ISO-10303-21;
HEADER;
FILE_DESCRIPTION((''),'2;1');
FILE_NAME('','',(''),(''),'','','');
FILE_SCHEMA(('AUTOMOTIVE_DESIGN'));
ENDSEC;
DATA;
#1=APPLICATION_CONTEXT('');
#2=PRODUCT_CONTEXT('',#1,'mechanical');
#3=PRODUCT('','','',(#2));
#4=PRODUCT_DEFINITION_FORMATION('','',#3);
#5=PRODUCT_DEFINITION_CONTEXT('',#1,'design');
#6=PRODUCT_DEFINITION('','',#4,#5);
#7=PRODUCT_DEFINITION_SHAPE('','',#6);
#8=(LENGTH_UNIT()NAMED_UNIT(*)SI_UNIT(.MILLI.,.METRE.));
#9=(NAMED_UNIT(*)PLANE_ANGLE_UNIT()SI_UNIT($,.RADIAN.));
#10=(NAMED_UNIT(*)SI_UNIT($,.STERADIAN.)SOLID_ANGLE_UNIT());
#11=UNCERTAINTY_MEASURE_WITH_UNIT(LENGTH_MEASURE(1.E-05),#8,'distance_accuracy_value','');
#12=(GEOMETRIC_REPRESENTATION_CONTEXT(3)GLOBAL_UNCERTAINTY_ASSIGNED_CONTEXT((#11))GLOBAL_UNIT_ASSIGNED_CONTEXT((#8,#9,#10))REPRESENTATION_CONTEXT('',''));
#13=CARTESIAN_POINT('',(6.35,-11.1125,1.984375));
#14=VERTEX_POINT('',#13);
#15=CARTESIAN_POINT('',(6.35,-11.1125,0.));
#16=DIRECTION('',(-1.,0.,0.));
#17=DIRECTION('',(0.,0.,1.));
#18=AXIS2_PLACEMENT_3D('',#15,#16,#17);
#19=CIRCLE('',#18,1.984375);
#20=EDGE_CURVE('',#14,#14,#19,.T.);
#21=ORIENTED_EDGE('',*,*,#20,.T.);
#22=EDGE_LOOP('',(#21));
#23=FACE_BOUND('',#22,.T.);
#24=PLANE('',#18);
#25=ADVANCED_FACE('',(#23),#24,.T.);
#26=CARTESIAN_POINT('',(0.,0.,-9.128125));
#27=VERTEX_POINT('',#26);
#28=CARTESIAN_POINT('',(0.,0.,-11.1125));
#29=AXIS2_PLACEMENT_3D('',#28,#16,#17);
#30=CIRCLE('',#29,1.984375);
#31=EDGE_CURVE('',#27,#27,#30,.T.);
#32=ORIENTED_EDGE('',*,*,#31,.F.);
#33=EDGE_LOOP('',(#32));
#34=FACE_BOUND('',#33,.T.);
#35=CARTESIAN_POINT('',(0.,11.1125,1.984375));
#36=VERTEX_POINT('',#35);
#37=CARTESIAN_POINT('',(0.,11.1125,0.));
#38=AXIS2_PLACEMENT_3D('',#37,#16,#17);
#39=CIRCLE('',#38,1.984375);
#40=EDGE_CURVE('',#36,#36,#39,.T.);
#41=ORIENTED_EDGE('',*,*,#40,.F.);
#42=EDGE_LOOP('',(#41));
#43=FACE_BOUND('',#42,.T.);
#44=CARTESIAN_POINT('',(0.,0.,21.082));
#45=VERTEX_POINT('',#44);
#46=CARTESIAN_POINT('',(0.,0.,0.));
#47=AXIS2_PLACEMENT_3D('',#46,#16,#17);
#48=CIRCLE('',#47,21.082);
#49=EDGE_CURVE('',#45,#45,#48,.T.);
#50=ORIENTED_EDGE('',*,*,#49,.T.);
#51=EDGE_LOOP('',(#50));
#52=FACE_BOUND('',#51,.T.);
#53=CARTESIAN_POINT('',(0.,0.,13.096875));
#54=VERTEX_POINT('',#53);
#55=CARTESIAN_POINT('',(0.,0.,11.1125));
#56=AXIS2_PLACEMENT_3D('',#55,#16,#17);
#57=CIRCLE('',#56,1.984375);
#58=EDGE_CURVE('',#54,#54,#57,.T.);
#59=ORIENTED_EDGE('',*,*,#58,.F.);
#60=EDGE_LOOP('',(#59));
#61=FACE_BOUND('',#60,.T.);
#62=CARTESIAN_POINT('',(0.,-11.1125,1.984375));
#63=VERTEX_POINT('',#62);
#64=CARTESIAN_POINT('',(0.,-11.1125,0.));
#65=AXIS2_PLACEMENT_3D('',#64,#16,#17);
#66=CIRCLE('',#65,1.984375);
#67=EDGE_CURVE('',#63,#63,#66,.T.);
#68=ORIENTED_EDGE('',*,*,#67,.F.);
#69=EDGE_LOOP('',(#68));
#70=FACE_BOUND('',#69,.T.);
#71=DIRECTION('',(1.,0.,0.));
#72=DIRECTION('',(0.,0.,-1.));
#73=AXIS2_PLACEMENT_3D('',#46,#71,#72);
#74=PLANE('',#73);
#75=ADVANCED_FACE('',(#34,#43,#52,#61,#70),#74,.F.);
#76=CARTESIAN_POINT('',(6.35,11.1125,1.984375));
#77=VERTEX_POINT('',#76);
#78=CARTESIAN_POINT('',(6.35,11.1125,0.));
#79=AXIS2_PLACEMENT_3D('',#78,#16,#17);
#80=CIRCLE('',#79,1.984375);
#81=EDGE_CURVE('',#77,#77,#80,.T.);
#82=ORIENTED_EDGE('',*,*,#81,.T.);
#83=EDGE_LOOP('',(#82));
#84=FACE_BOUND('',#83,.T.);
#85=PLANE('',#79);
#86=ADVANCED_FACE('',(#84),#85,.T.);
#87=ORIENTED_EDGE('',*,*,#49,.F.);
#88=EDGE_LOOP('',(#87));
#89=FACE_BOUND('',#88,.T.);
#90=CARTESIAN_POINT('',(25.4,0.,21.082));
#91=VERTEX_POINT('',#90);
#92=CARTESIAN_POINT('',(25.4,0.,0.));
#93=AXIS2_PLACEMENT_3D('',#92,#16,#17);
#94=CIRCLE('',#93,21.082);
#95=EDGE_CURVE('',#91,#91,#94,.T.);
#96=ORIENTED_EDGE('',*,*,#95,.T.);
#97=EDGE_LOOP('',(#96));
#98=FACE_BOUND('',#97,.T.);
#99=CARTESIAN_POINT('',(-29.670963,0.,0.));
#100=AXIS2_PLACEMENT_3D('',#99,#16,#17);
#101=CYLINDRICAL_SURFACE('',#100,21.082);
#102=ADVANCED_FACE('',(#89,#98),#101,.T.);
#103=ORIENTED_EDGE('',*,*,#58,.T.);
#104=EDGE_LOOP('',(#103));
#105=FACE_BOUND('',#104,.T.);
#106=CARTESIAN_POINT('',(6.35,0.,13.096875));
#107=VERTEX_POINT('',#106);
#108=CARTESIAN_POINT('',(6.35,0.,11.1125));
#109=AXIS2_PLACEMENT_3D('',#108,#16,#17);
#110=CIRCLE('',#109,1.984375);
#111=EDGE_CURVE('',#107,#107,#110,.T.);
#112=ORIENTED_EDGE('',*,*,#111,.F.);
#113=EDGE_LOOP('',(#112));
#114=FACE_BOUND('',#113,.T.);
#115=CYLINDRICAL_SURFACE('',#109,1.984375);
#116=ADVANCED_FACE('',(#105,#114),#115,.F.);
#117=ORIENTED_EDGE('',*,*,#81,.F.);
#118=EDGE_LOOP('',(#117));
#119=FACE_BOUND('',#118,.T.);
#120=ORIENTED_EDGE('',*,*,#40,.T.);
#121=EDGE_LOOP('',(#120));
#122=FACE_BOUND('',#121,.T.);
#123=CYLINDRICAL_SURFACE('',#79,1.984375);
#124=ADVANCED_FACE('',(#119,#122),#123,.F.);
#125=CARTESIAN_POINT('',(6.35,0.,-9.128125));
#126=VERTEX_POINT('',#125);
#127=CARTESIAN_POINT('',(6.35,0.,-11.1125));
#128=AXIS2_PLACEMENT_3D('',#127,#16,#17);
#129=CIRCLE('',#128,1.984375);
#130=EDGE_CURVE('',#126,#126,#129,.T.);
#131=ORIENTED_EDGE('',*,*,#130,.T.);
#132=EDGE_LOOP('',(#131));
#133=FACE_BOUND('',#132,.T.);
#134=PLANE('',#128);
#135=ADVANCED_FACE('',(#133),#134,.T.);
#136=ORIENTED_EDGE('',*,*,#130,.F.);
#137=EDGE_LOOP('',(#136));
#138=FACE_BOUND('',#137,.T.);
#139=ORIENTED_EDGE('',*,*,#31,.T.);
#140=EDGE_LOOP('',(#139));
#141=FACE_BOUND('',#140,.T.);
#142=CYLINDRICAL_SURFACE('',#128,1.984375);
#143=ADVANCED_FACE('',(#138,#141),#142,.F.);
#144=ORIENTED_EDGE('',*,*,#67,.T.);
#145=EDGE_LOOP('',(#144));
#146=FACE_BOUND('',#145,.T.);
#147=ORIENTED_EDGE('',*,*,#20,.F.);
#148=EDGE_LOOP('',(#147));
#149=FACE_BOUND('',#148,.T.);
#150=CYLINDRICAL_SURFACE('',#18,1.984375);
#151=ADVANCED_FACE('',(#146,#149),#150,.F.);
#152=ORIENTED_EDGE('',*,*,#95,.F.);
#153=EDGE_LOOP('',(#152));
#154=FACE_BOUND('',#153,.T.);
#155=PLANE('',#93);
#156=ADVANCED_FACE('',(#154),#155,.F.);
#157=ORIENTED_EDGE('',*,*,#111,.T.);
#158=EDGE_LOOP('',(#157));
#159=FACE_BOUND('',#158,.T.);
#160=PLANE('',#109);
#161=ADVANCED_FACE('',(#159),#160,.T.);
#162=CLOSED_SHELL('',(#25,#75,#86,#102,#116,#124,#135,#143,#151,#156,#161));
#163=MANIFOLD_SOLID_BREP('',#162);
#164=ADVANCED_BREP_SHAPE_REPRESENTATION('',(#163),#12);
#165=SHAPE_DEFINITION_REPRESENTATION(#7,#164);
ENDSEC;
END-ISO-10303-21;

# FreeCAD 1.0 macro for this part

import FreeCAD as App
import Part
import Sketcher

V = App.Vector
Q = App.Units.Quantity


def add_polygon(sketch, points):
    """Adds a closed chain of lines whose ends are joined by coincident constraints."""
    first, n = sketch.GeometryCount, len(points)
    for a, b in zip(points, points[1:] + points[:1]):
        sketch.addGeometry(Part.LineSegment(App.Vector(*a, 0), App.Vector(*b, 0)), False)
    for i in range(n):
        sketch.addConstraint(Sketcher.Constraint("Coincident", first + i, 2, first + (i + 1) % n, 1))

doc = App.newDocument("Part")
body = doc.addObject("PartDesign::Body", "Body")

# Sketch on XY plane
sketch1 = doc.addObject("Sketcher::SketchObject", "Sketch")
body.addObject(sketch1)
sketch1.AttachmentSupport = (doc.XY_Plane, [""])
sketch1.MapMode = "FlatFace"
add_polygon(sketch1, [(0, 21.082), (0, 0), (25.4, 0), (25.4, 21.082)])  # lines 0-3
sketch1.addConstraint([
    Sketcher.Constraint("Vertical", 0),
    Sketcher.Constraint("Horizontal", 1),
    Sketcher.Constraint("Vertical", 2),
    Sketcher.Constraint("Horizontal", 3),
    Sketcher.Constraint("Coincident", 0, 2, -1, 1),
    Sketcher.Constraint("DistanceX", 1, 1, 1, 2, Q("1 in")),
    Sketcher.Constraint("DistanceY", 0, 2, 0, 1, Q("0.83 in")),
])
revolution = doc.addObject("PartDesign::Revolution", "Revolution")
body.addObject(revolution)
revolution.Profile = sketch1
revolution.ReferenceAxis = (sketch1, ["H_Axis"])
revolution.Angle = 360

# Sketch on YZ plane
sketch2 = doc.addObject("Sketcher::SketchObject", "Sketch001")
body.addObject(sketch2)
sketch2.AttachmentSupport = (doc.YZ_Plane, [""])
sketch2.MapMode = "FlatFace"
sketch2.addGeometry([
    Part.Circle(V(11.1125, 0, 0), V(0, 0, 1), 1.984375),
    Part.Circle(V(0, 11.1125, 0), V(0, 0, 1), 1.984375),
    Part.Circle(V(-11.1125, 0, 0), V(0, 0, 1), 1.984375),
    Part.Circle(V(0, -11.1125, 0), V(0, 0, 1), 1.984375),
], False)
sketch2.addConstraint([
    Sketcher.Constraint("Equal", 0, 1),
    Sketcher.Constraint("Equal", 1, 2),
    Sketcher.Constraint("Equal", 2, 3),
    Sketcher.Constraint("Symmetric", 0, 3, 2, 3, -1, 1),
    Sketcher.Constraint("Symmetric", 1, 3, 3, 3, -1, 1),
    Sketcher.Constraint("PointOnObject", 0, 3, -1),
    Sketcher.Constraint("PointOnObject", 1, 3, -2),
    Sketcher.Constraint("Diameter", 0, Q("0.15625 in")),
    Sketcher.Constraint("DistanceX", -1, 1, 0, 3, Q("0.4375 in")),
    Sketcher.Constraint("DistanceY", -1, 1, 1, 3, Q("0.4375 in")),
])
pocket1 = doc.addObject("PartDesign::Pocket", "Pocket")
body.addObject(pocket1)
pocket1.Profile = sketch2
pocket1.Length = Q("0.25 in")
pocket1.Reversed = True

doc.recompute()
